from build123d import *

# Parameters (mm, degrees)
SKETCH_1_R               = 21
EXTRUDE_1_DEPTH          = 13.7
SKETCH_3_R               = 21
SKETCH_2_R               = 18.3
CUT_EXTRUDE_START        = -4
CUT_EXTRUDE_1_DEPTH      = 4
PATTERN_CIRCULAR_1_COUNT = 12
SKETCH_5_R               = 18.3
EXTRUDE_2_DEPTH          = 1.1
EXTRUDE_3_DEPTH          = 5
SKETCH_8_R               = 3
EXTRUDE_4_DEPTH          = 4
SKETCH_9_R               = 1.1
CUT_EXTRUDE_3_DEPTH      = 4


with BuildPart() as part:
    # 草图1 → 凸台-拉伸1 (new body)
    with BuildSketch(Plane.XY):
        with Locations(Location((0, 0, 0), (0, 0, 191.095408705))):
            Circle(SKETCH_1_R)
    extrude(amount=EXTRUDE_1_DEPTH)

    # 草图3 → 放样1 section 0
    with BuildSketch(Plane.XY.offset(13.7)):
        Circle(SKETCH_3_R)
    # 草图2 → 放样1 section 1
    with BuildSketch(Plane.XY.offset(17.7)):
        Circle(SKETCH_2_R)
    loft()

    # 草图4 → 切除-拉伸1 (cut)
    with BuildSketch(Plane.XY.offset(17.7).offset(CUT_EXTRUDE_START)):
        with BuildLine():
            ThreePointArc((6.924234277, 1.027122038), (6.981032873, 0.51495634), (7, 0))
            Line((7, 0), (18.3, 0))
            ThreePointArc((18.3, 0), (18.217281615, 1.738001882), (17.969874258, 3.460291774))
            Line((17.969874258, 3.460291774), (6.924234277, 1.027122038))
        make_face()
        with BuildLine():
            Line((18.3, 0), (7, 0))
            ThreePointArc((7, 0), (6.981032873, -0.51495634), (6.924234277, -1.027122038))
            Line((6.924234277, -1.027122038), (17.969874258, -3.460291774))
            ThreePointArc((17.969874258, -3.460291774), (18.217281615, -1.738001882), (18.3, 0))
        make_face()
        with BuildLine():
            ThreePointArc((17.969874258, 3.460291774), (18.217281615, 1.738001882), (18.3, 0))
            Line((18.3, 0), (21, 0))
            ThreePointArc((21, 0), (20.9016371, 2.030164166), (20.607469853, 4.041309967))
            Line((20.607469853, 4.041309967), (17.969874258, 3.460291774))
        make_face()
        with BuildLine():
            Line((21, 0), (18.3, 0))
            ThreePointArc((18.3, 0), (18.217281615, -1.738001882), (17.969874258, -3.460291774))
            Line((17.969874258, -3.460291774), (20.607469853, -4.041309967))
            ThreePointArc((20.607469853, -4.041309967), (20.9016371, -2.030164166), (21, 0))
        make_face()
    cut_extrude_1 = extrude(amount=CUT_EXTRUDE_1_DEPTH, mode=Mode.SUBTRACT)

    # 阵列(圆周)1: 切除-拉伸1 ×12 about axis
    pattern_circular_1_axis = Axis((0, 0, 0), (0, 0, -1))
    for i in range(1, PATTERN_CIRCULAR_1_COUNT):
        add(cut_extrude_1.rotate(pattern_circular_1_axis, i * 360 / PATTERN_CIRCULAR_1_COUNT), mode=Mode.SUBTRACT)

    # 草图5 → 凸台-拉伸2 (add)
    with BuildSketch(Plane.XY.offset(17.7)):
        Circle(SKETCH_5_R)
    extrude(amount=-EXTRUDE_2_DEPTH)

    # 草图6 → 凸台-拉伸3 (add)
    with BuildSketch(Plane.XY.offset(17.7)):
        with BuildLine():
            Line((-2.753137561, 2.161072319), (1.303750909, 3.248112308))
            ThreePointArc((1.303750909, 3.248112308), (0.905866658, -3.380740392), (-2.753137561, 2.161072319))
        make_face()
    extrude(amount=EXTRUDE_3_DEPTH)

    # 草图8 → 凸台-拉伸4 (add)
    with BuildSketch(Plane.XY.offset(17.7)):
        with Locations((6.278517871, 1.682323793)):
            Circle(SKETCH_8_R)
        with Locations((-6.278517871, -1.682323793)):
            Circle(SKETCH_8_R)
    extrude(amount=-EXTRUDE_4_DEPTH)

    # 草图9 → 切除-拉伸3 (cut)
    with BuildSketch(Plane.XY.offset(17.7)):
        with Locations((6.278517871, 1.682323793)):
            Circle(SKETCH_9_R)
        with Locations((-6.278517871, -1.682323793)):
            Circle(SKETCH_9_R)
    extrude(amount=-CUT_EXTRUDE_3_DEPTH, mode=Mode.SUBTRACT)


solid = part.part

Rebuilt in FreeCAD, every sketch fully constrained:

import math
import FreeCAD as App
import Part
import Sketcher

V = App.Vector
Q = App.Units.Quantity

doc = App.newDocument("Part")
body = doc.addObject("PartDesign::Body", "Body")

# Sketch on XY plane
sketch1 = doc.addObject("Sketcher::SketchObject", "Sketch")
body.addObject(sketch1)
sketch1.AttachmentSupport = (doc.XY_Plane, [""])
sketch1.MapMode = "FlatFace"
sketch1.addGeometry(Part.Circle(V(0, 0, 0), V(0, 0, 1), 21), False)
sketch1.addConstraint([
    Sketcher.Constraint("Coincident", 0, 3, -1, 1),
    Sketcher.Constraint("Diameter", 0, Q("42 mm")),
])
pad1 = doc.addObject("PartDesign::Pad", "Pad")
body.addObject(pad1)
pad1.Profile = sketch1
pad1.Length = 13.7

# Sketch on XY plane
sketch2 = doc.addObject("Sketcher::SketchObject", "Sketch001")
body.addObject(sketch2)
sketch2.AttachmentSupport = (doc.XY_Plane, [""])
sketch2.MapMode = "FlatFace"
sketch2.AttachmentOffset = App.Placement(V(0, 0, 13.7), App.Rotation())
sketch2.addGeometry(Part.Circle(V(0, 0, 0), V(0, 0, 1), 21), False)
sketch2.addConstraint([
    Sketcher.Constraint("Coincident", 0, 3, -1, 1),
    Sketcher.Constraint("Diameter", 0, Q("42 mm")),
])

# Sketch on XY plane
sketch3 = doc.addObject("Sketcher::SketchObject", "Sketch002")
body.addObject(sketch3)
sketch3.AttachmentSupport = (doc.XY_Plane, [""])
sketch3.MapMode = "FlatFace"
sketch3.AttachmentOffset = App.Placement(V(0, 0, 17.7), App.Rotation())
sketch3.addGeometry(Part.Circle(V(0, 0, 0), V(0, 0, 1), 18), False)
sketch3.addConstraint([
    Sketcher.Constraint("Coincident", 0, 3, -1, 1),
    Sketcher.Constraint("Diameter", 0, Q("36.6 mm")),
])

additiveloft = doc.addObject("PartDesign::AdditiveLoft", "AdditiveLoft")
body.addObject(additiveloft)
additiveloft.Profile = sketch2
additiveloft.Sections = [sketch3]

# Sketch on XY plane
sketch4 = doc.addObject("Sketcher::SketchObject", "Sketch003")
body.addObject(sketch4)
sketch4.AttachmentSupport = (doc.XY_Plane, [""])
sketch4.MapMode = "FlatFace"
sketch4.AttachmentOffset = App.Placement(V(0, 0, 13.7), App.Rotation())
sketch4.addGeometry([
    Part.ArcOfCircle(Part.Circle(V(0, 0, 0), V(0, 0, 1), 7), math.radians(0), math.radians(8.44)),  # 0
    Part.ArcOfCircle(Part.Circle(V(0, 0, 0), V(0, 0, 1), 7), math.radians(-8.44), math.radians(0)),  # 1
    Part.LineSegment(V(6.9, -1, 0), V(18, -3.5, 0)),  # 2
    Part.LineSegment(V(18, -3.5, 0), V(20.6, -4, 0)),  # 3
    Part.ArcOfCircle(Part.Circle(V(0, 0, 0), V(0, 0, 1), 21), math.radians(-11.1), math.radians(0)),  # 4
    Part.ArcOfCircle(Part.Circle(V(0, 0, 0), V(0, 0, 1), 21), math.radians(0), math.radians(11.1)),  # 5
    Part.LineSegment(V(20.6, 4, 0), V(18, 3.5, 0)),  # 6
    Part.LineSegment(V(18, 3.5, 0), V(6.9, 1, 0)),  # 7
], False)
sketch4.addConstraint([
    Sketcher.Constraint("Tangent", 0, 1, 1, 2),
    Sketcher.Constraint("Coincident", 1, 1, 2, 1),
    Sketcher.Constraint("Coincident", 2, 2, 3, 1),
    Sketcher.Constraint("Coincident", 3, 2, 4, 1),
    Sketcher.Constraint("Tangent", 4, 2, 5, 1),
    Sketcher.Constraint("Coincident", 5, 2, 6, 1),
    Sketcher.Constraint("Coincident", 6, 2, 7, 1),
    Sketcher.Constraint("Coincident", 7, 2, 0, 2),
    Sketcher.Constraint("Coincident", 0, 3, -1, 1),
    Sketcher.Constraint("Coincident", 4, 3, -1, 1),
    Sketcher.Constraint("Equal", 0, 1),
    Sketcher.Constraint("Equal", 4, 5),
    Sketcher.Constraint("Symmetric", 2, 2, 6, 2, -1),
    Sketcher.Constraint("PointOnObject", 0, 1, -1),
    Sketcher.Constraint("PointOnObject", 4, 2, -1),
    Sketcher.Constraint("Parallel", 2, 3),
    Sketcher.Constraint("Parallel", 6, 7),
    Sketcher.Constraint("Vertical", 3, 2, 5, 2),
    Sketcher.Constraint("Radius", 0, Q("7 mm")),
    Sketcher.Constraint("Radius", 4, Q("21 mm")),
    Sketcher.Constraint("DistanceY", 2, 2, 5, 2, Q("7.501602 mm")),
    Sketcher.Constraint("Distance", 2, Q("11.310459 mm")),
    Sketcher.Constraint("Distance", 3, Q("2.700832 mm")),
])
pocket1 = doc.addObject("PartDesign::Pocket", "Pocket")
body.addObject(pocket1)
pocket1.Profile = sketch4
pocket1.Length = 4
pocket1.Reversed = True
doc.recompute()

polarpattern = doc.addObject("PartDesign::PolarPattern", "PolarPattern")
body.addObject(polarpattern)
polarpattern.Originals = [pocket1]
polarpattern.Axis = (doc.Z_Axis, [""])
polarpattern.Angle = 360
polarpattern.Occurrences = 12
body.Tip = polarpattern

# Sketch on XY plane
sketch5 = doc.addObject("Sketcher::SketchObject", "Sketch004")
body.addObject(sketch5)
sketch5.AttachmentSupport = (doc.XY_Plane, [""])
sketch5.MapMode = "FlatFace"
sketch5.AttachmentOffset = App.Placement(V(0, 0, 17.7), App.Rotation())
sketch5.addGeometry(Part.Circle(V(0, 0, 0), V(0, 0, 1), 18), False)
sketch5.addConstraint([
    Sketcher.Constraint("Coincident", 0, 3, -1, 1),
    Sketcher.Constraint("Diameter", 0, Q("36.6 mm")),
])
pad2 = doc.addObject("PartDesign::Pad", "Pad001")
body.addObject(pad2)
pad2.Profile = sketch5
pad2.Length = 1.1
pad2.Reversed = True

# Sketch on XY plane
sketch6 = doc.addObject("Sketcher::SketchObject", "Sketch005")
body.addObject(sketch6)
sketch6.AttachmentSupport = (doc.XY_Plane, [""])
sketch6.MapMode = "FlatFace"
sketch6.AttachmentOffset = App.Placement(V(0, 0, 17.7), App.Rotation())
sketch6.addGeometry([
    Part.LineSegment(V(1.3, 3.2, 0), V(-2.8, 2.2, 0)),
    Part.ArcOfCircle(Part.Circle(V(0, 0, 0), V(0, 0, 1), 3.5), math.radians(142), math.radians(428)),
], False)
sketch6.addConstraint([
    Sketcher.Constraint("Coincident", 0, 1, 1, 2),
    Sketcher.Constraint("Coincident", 1, 1, 0, 2),
    Sketcher.Constraint("Coincident", 1, 3, -1, 1),
    Sketcher.Constraint("Radius", 1, Q("3.5 mm")),
    Sketcher.Constraint("Angle", 0, Q("-165 deg")),
    Sketcher.Constraint("Distance", 0, Q("4.2 mm")),
])
pad3 = doc.addObject("PartDesign::Pad", "Pad002")
body.addObject(pad3)
pad3.Profile = sketch6
pad3.Length = 5

# Sketch on XY plane
sketch7 = doc.addObject("Sketcher::SketchObject", "Sketch006")
body.addObject(sketch7)
sketch7.AttachmentSupport = (doc.XY_Plane, [""])
sketch7.MapMode = "FlatFace"
sketch7.AttachmentOffset = App.Placement(V(0, 0, 17.7), App.Rotation())
sketch7.addGeometry([
    Part.Circle(V(6.3, 1.7, 0), V(0, 0, 1), 3),
    Part.Circle(V(-6.3, -1.7, 0), V(0, 0, 1), 3),
], False)
sketch7.addConstraint([
    Sketcher.Constraint("Equal", 0, 1),
    Sketcher.Constraint("Symmetric", 0, 3, 1, 3, -1, 1),
    Sketcher.Constraint("Diameter", 0, Q("6 mm")),
    Sketcher.Constraint("DistanceX", -1, 1, 0, 3, Q("6.278518 mm")),
    Sketcher.Constraint("DistanceY", -1, 1, 0, 3, Q("1.682324 mm")),
])
pad4 = doc.addObject("PartDesign::Pad", "Pad003")
body.addObject(pad4)
pad4.Profile = sketch7
pad4.Length = 4
pad4.Reversed = True

# Sketch on XY plane
sketch8 = doc.addObject("Sketcher::SketchObject", "Sketch007")
body.addObject(sketch8)
sketch8.AttachmentSupport = (doc.XY_Plane, [""])
sketch8.MapMode = "FlatFace"
sketch8.AttachmentOffset = App.Placement(V(0, 0, 17.7), App.Rotation())
sketch8.addGeometry([
    Part.Circle(V(6.3, 1.7, 0), V(0, 0, 1), 1.1),
    Part.Circle(V(-6.3, -1.7, 0), V(0, 0, 1), 1.1),
], False)
sketch8.addConstraint([
    Sketcher.Constraint("Equal", 0, 1),
    Sketcher.Constraint("Symmetric", 0, 3, 1, 3, -1, 1),
    Sketcher.Constraint("Diameter", 0, Q("2.2 mm")),
    Sketcher.Constraint("DistanceX", -1, 1, 0, 3, Q("6.278518 mm")),
    Sketcher.Constraint("DistanceY", -1, 1, 0, 3, Q("1.682324 mm")),
])
pocket2 = doc.addObject("PartDesign::Pocket", "Pocket001")
body.addObject(pocket2)
pocket2.Profile = sketch8
pocket2.Length = 4

doc.recompute()
